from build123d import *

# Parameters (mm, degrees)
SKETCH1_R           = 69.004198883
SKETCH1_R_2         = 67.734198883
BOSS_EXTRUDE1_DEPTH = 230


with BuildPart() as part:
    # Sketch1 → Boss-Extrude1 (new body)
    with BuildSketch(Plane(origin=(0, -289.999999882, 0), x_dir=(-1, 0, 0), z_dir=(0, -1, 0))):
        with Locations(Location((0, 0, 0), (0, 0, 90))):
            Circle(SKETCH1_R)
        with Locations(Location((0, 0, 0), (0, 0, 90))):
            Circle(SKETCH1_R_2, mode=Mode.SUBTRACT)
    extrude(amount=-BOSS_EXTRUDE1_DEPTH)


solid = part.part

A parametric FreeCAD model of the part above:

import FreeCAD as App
import Part
import Sketcher
Q = App.Units.Quantity

doc = App.newDocument("Part")
body = doc.addObject("PartDesign::Body", "Body")

sketch1 = body.newObject("Sketcher::SketchObject", "Sketch")
sketch1.AttachmentSupport = (doc.getObject("XZ_Plane"), [""])
sketch1.MapMode = "FlatFace"
sketch1.AttachmentOffset = App.Placement(App.Vector(0, 0, 290), App.Rotation())
sketch1.addGeometry([
    Part.Circle(App.Vector(0, 0, 0), App.Vector(0, 0, 1), 69),
    Part.Circle(App.Vector(0, 0, 0), App.Vector(0, 0, 1), 68),
], False)
sketch1.addConstraint([
    Sketcher.Constraint("Coincident", 0, 3, -1, 1),
    Sketcher.Constraint("Coincident", 1, 3, -1, 1),
    Sketcher.Constraint("Diameter", 0, Q("138.008398 mm")),
    Sketcher.Constraint("Diameter", 1, Q("135.468398 mm")),
])
pad1 = body.newObject("PartDesign::Pad", "Pad")
pad1.Profile = sketch1
pad1.Length = 230
pad1.Reversed = True

doc.recompute()
